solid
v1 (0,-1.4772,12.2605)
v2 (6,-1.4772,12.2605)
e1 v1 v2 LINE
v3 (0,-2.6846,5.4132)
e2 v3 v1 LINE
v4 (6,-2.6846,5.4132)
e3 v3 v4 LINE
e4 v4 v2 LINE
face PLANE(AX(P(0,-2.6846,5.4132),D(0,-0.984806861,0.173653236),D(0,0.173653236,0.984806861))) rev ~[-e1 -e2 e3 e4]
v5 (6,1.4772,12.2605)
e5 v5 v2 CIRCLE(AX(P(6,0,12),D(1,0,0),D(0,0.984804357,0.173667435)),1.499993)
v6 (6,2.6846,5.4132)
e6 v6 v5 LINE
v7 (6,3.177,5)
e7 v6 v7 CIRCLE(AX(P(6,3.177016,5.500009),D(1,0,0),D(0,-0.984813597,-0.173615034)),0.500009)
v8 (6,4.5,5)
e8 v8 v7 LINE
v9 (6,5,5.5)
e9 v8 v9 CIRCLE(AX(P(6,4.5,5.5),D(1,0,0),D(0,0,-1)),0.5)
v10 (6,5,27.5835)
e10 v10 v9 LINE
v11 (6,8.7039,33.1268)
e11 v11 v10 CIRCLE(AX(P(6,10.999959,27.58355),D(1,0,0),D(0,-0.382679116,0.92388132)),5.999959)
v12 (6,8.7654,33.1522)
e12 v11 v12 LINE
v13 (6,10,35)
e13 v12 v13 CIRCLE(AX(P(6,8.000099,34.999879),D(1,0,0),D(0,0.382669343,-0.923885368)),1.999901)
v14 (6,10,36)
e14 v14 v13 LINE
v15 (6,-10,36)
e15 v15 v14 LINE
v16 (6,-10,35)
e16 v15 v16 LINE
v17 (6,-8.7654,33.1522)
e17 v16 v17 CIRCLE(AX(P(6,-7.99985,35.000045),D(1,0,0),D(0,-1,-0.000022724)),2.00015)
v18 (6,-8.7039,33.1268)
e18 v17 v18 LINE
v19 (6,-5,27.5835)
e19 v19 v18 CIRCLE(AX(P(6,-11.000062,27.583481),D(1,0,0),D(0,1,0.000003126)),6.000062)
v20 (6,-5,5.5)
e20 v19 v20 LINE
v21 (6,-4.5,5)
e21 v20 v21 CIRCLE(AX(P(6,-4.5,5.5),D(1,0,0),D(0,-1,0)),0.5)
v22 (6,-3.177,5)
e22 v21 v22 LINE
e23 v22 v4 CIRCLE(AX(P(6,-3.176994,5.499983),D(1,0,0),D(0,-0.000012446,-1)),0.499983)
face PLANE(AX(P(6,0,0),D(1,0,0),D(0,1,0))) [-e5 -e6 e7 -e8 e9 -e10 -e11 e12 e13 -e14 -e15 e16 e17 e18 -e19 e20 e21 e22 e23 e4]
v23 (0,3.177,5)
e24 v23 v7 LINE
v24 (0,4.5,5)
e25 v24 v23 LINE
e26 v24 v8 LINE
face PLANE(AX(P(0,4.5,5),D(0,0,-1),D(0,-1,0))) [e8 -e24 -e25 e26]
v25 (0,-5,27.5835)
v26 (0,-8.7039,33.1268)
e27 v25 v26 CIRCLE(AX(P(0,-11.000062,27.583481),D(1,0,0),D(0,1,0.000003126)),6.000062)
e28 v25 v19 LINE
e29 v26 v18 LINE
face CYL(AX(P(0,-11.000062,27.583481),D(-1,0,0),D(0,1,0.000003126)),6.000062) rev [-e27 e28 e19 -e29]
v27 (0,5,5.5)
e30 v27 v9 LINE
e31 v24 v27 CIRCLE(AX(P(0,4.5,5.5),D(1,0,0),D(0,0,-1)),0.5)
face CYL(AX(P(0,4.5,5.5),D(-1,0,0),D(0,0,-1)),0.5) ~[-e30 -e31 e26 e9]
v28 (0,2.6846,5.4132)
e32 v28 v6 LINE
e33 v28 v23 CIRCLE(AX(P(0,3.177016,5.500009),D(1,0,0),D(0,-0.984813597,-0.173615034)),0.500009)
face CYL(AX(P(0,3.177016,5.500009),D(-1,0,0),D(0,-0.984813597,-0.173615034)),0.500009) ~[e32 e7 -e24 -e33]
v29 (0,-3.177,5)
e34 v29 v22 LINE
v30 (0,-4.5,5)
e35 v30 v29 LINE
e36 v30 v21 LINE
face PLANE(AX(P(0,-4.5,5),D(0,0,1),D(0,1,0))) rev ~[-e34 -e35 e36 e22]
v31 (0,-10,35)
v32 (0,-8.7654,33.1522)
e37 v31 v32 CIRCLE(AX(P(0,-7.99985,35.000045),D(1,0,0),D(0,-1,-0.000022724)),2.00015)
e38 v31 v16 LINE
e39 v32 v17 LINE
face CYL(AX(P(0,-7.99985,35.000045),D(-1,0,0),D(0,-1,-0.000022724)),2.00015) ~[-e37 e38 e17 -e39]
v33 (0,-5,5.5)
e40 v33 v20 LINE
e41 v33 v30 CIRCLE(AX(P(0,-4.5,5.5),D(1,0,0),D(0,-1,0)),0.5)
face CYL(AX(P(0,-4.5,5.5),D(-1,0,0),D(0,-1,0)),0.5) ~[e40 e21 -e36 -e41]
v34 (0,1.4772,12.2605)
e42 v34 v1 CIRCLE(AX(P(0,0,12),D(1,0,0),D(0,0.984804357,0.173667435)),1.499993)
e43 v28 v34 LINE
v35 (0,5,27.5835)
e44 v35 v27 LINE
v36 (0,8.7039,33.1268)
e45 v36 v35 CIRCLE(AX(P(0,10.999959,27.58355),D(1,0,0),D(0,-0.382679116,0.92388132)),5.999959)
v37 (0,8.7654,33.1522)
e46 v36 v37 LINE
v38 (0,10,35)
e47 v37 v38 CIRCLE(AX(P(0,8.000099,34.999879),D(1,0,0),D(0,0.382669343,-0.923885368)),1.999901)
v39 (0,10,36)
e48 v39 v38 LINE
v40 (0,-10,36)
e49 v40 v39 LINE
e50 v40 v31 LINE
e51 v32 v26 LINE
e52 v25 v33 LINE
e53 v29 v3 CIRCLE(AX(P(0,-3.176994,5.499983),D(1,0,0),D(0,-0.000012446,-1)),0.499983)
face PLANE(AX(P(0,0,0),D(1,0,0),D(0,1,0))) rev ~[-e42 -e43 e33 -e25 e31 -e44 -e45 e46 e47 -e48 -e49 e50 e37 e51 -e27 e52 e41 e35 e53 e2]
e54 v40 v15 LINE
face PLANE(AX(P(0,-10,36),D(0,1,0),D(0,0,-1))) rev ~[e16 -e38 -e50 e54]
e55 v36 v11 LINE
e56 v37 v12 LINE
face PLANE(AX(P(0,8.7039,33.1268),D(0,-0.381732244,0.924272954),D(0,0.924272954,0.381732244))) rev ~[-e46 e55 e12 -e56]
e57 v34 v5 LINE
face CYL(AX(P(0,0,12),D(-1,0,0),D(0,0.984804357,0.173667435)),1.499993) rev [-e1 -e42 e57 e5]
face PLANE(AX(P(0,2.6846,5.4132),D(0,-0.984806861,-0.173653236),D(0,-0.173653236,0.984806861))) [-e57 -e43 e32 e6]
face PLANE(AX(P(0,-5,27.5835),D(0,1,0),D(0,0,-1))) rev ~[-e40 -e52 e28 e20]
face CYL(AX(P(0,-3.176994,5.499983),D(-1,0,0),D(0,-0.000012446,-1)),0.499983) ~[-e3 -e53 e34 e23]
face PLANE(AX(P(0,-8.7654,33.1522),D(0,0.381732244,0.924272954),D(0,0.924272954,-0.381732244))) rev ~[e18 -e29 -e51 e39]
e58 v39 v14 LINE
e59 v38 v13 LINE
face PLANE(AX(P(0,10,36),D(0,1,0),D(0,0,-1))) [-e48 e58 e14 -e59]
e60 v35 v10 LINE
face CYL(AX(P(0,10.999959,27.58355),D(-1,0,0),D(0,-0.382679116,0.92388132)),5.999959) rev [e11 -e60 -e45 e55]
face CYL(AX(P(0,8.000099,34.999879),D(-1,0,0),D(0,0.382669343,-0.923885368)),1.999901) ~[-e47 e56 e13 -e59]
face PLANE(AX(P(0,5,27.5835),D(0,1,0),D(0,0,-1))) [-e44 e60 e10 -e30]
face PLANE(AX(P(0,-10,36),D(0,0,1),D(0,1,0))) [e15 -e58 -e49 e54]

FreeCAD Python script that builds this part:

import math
import FreeCAD as App
import Part
import Sketcher
from FreeCAD import Vector
Q = App.Units.Quantity

doc = App.newDocument("Part")
params = doc.addObject("Spreadsheet::Sheet", "Params")
for row, (alias, value) in enumerate([
    ("sketch1_radius", "2 mm"),
    ("sketch1_radius2", "6 mm"),
    ("sketch1_radius3", "0.5 mm"),
    ("sketch1_radius4", "1.5 mm"),
    ("sketch1_width", "20 mm"),
    ("pad1_length", "6 mm"),
], start=1):
    params.set(f"A{row}", alias)
    params.set(f"B{row}", "=" + value)
    params.setAlias(f"B{row}", alias)

body = doc.addObject("PartDesign::Body", "Body")

# Sketch on YZ plane
sketch1 = body.newObject("Sketcher::SketchObject", "Sketch")
sketch1.AttachmentSupport = (doc.getObject("YZ_Plane"), [""])
sketch1.MapMode = "FlatFace"
sketch1.addGeometry([
    Part.ArcOfCircle(Part.Circle(Vector(-8, 35, 0), Vector(0, 0, 1), 2), math.radians(180), math.radians(247)),  # 0
    Part.LineSegment(Vector(-8.77, 33.15, 0), Vector(-8.7, 33.13, 0)),  # 1
    Part.ArcOfCircle(Part.Circle(Vector(-11, 27.58, 0), Vector(0, 0, 1), 6), math.radians(0), math.radians(68)),  # 2
    Part.LineSegment(Vector(-5, 27.58, 0), Vector(-5, 5.5, 0)),  # 3
    Part.ArcOfCircle(Part.Circle(Vector(-4.5, 5.5, 0), Vector(0, 0, 1), 0.5), math.radians(180), math.radians(270)),  # 4
    Part.LineSegment(Vector(-4.5, 5, 0), Vector(-3.18, 5, 0)),  # 5
    Part.ArcOfCircle(Part.Circle(Vector(-3.18, 5.5, 0), Vector(0, 0, 1), 0.5), math.radians(-90), math.radians(-10)),  # 6
    Part.LineSegment(Vector(-2.68, 5.41, 0), Vector(-1.48, 12.26, 0)),  # 7
    Part.ArcOfCircle(Part.Circle(Vector(0, 12, 0), Vector(0, 0, 1), 1.5), math.radians(10), math.radians(170)),  # 8
    Part.LineSegment(Vector(1.48, 12.26, 0), Vector(2.68, 5.41, 0)),  # 9
    Part.ArcOfCircle(Part.Circle(Vector(3.18, 5.5, 0), Vector(0, 0, 1), 0.5), math.radians(-170), math.radians(-90)),  # 10
    Part.LineSegment(Vector(3.18, 5, 0), Vector(4.5, 5, 0)),  # 11
    Part.ArcOfCircle(Part.Circle(Vector(4.5, 5.5, 0), Vector(0, 0, 1), 0.5), math.radians(-90), math.radians(0)),  # 12
    Part.LineSegment(Vector(5, 5.5, 0), Vector(5, 27.58, 0)),  # 13
    Part.ArcOfCircle(Part.Circle(Vector(11, 27.58, 0), Vector(0, 0, 1), 6), math.radians(112), math.radians(180)),  # 14
    Part.LineSegment(Vector(8.7, 33.13, 0), Vector(8.77, 33.15, 0)),  # 15
    Part.ArcOfCircle(Part.Circle(Vector(8, 35, 0), Vector(0, 0, 1), 2), math.radians(-67), math.radians(0)),  # 16
    Part.LineSegment(Vector(10, 35, 0), Vector(10, 36, 0)),  # 17
    Part.LineSegment(Vector(10, 36, 0), Vector(-10, 36, 0)),  # 18
    Part.LineSegment(Vector(-10, 36, 0), Vector(-10, 35, 0)),  # 19
], False)
sketch1.addConstraint([
    Sketcher.Constraint("Coincident", 0, 2, 1, 1),
    Sketcher.Constraint("Coincident", 1, 2, 2, 2),
    Sketcher.Constraint("Tangent", 2, 1, 3, 1),
    Sketcher.Constraint("Tangent", 3, 2, 4, 1),
    Sketcher.Constraint("Tangent", 4, 2, 5, 1),
    Sketcher.Constraint("Tangent", 5, 2, 6, 1),
    Sketcher.Constraint("Tangent", 6, 2, 7, 1),
    Sketcher.Constraint("Tangent", 7, 2, 8, 2),
    Sketcher.Constraint("Tangent", 8, 1, 9, 1),
    Sketcher.Constraint("Tangent", 9, 2, 10, 1),
    Sketcher.Constraint("Tangent", 10, 2, 11, 1),
    Sketcher.Constraint("Tangent", 11, 2, 12, 1),
    Sketcher.Constraint("Tangent", 12, 2, 13, 1),
    Sketcher.Constraint("Tangent", 13, 2, 14, 2),
    Sketcher.Constraint("Coincident", 14, 1, 15, 1),
    Sketcher.Constraint("Coincident", 15, 2, 16, 1),
    Sketcher.Constraint("Tangent", 16, 2, 17, 1),
    Sketcher.Constraint("Coincident", 17, 2, 18, 1),
    Sketcher.Constraint("Coincident", 18, 2, 19, 1),
    Sketcher.Constraint("Tangent", 19, 2, 0, 1),
    Sketcher.Constraint("Vertical", 3),
    Sketcher.Constraint("Horizontal", 5),
    Sketcher.Constraint("Horizontal", 11),
    Sketcher.Constraint("Vertical", 13),
    Sketcher.Constraint("Vertical", 17),
    Sketcher.Constraint("Horizontal", 18),
    Sketcher.Constraint("Vertical", 19),
    Sketcher.Constraint("Equal", 4, 6),
    Sketcher.Constraint("Equal", 6, 10),
    Sketcher.Constraint("Equal", 10, 12),
    Sketcher.Constraint("Equal", 2, 14),
    Sketcher.Constraint("Equal", 0, 16),
    Sketcher.Constraint("Symmetric", 6, 3, 10, 3, -2),
    Sketcher.Constraint("Symmetric", 2, 3, 14, 3, -2),
    Sketcher.Constraint("Symmetric", 0, 3, 16, 3, -2),
    Sketcher.Constraint("PointOnObject", 8, 3, -2),
    Sketcher.Constraint("Horizontal", 1, 2, 14, 1),
    Sketcher.Constraint("Horizontal", 0, 2, 15, 2),
    Sketcher.Constraint("Radius", 0, 2.0),
    Sketcher.Constraint("Radius", 2, 6.0),
    Sketcher.Constraint("Radius", 4, 0.5),
    Sketcher.Constraint("Radius", 8, 1.5),
    Sketcher.Constraint("DistanceX", 18, 2, 18, 1, 20.0),
    Sketcher.Constraint("DistanceY", 17, 1, 17, 2, 1.0),
    Sketcher.Constraint("DistanceY", -1, 1, 8, 3, 12.0),
    Sketcher.Constraint("DistanceX", 2, 1, -1, 1, 5.0),
    Sketcher.Constraint("DistanceY", -1, 1, 4, 2, 5.0),
    Sketcher.Constraint("DistanceY", -1, 1, 17, 2, 36.0),
    Sketcher.Constraint("Angle", 7, Q("79.9997 deg")),
    Sketcher.Constraint("Angle", 1, Q("-22.441 deg")),
    Sketcher.Constraint("DistanceX", 1, 2, -1, 1, 8.704),
    Sketcher.Constraint("Distance", 1, 0.0665),
])
sketch1.setExpression("Constraints[38]", "Params.sketch1_radius")
sketch1.setExpression("Constraints[39]", "Params.sketch1_radius2")
sketch1.setExpression("Constraints[40]", "Params.sketch1_radius3")
sketch1.setExpression("Constraints[41]", "Params.sketch1_radius4")
sketch1.setExpression("Constraints[42]", "Params.sketch1_width")
pad1 = body.newObject("PartDesign::Pad", "Pad")
pad1.Profile = sketch1
pad1.setExpression("Length", "Params.pad1_length")

doc.recompute()
